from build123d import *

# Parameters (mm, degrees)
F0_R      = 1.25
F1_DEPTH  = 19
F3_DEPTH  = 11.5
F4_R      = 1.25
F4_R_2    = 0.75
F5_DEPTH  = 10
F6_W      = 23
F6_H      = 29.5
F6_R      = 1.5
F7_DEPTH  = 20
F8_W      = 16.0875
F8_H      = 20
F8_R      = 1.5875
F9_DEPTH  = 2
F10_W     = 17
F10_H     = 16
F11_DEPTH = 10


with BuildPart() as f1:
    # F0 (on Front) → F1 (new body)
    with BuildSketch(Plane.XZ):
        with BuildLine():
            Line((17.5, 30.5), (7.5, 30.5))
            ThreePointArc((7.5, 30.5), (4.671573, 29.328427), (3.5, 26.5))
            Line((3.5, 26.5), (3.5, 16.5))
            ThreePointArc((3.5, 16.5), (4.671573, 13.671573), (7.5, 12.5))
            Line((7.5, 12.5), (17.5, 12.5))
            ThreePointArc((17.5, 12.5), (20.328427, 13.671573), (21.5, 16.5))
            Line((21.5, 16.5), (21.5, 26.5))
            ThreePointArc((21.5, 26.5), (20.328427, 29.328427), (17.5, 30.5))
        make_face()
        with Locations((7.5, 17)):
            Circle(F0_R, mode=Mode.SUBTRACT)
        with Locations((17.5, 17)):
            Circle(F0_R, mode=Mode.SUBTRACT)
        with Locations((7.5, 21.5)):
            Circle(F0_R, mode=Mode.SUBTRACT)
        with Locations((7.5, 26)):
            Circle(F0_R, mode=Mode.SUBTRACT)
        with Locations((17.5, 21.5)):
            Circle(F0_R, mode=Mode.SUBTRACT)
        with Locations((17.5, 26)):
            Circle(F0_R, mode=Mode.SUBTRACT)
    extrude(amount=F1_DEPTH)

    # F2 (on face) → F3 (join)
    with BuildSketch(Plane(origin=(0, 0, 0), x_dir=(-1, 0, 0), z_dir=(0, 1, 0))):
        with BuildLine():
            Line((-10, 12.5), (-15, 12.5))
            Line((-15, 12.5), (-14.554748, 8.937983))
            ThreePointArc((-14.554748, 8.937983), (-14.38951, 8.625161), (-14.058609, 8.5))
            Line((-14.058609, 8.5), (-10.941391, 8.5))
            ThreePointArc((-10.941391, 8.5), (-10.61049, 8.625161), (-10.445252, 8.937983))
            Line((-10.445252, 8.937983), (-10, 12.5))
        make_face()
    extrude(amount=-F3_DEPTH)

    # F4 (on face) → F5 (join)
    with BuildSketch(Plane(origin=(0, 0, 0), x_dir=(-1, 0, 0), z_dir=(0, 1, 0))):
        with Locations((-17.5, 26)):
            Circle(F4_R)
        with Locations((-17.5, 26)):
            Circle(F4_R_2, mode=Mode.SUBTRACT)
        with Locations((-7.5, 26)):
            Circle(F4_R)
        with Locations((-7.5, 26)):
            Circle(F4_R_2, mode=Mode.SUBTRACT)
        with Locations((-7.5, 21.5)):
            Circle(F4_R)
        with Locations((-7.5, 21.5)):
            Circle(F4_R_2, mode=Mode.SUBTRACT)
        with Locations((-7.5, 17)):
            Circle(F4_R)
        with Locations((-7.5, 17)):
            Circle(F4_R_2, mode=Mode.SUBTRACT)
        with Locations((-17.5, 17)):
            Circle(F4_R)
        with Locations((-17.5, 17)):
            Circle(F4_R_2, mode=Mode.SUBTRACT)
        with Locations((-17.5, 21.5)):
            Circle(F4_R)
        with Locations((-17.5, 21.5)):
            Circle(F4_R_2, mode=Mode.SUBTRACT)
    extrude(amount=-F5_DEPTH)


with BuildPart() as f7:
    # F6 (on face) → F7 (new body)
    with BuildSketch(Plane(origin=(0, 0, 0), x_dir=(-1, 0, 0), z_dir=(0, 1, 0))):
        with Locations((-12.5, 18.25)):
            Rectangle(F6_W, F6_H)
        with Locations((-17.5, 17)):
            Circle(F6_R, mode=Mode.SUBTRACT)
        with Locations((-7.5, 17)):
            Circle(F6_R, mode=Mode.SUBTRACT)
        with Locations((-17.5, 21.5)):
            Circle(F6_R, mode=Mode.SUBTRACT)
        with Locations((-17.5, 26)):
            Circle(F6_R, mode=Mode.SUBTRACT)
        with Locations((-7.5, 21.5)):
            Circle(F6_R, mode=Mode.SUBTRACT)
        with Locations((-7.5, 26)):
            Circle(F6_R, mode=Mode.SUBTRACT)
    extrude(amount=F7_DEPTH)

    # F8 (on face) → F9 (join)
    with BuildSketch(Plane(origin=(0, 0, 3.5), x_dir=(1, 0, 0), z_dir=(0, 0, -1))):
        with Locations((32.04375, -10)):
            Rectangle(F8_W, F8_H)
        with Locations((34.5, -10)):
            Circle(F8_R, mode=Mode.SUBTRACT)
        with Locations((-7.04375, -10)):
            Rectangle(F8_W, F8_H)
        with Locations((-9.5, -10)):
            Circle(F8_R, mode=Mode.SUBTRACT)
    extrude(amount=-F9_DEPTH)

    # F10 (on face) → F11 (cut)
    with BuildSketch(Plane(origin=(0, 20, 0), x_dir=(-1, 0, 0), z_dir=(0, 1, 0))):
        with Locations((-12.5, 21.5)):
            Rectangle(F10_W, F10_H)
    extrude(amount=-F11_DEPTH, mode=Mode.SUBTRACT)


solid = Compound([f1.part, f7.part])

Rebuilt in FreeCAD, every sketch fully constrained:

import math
import FreeCAD as App
import Part
import Sketcher
from FreeCAD import Vector
Q = App.Units.Quantity


def add_polygon(sketch, points):
    """Adds a closed chain of lines whose ends are joined by coincident constraints."""
    first, n = sketch.GeometryCount, len(points)
    for a, b in zip(points, points[1:] + points[:1]):
        sketch.addGeometry(Part.LineSegment(App.Vector(*a, 0), App.Vector(*b, 0)), False)
    for i in range(n):
        sketch.addConstraint(Sketcher.Constraint("Coincident", first + i, 2, first + (i + 1) % n, 1))

doc = App.newDocument("Part")
params = doc.addObject("Spreadsheet::Sheet", "Params")
for row, (alias, value) in enumerate([
    ("sketch1_radius", "4 mm"),
    ("sketch1_diameter", "2.5 mm"),
    ("sketch1_width", "10 mm"),
    ("pad1_length", "19 mm"),
    ("sketch2_radius", "0.500001 mm"),
    ("sketch2_width", "5 mm"),
    ("pad2_length", "11.5 mm"),
    ("sketch3_diameter", "2.5 mm"),
    ("sketch3_diameter2", "1.5 mm"),
    ("pad3_length", "10 mm"),
    ("sketch4_diameter", "3 mm"),
    ("sketch4_width", "23 mm"),
    ("sketch4_height", "29.5 mm"),
    ("pad4_length", "20 mm"),
    ("sketch5_height", "20 mm"),
    ("pad5_length", "2 mm"),
    ("sketch6_width", "17 mm"),
    ("sketch6_height", "16 mm"),
    ("pocket1_length", "10 mm"),
], start=1):
    params.set(f"A{row}", alias)
    params.set(f"B{row}", "=" + value)
    params.setAlias(f"B{row}", alias)

body = doc.addObject("PartDesign::Body", "Body")

# Sketch on XZ plane
sketch1 = doc.addObject("Sketcher::SketchObject", "Sketch")
body.addObject(sketch1)
sketch1.AttachmentSupport = (doc.XZ_Plane, [""])
sketch1.MapMode = "FlatFace"
sketch1.addGeometry(Part.LineSegment(Vector(17.5, 30.5, 0), Vector(7.5, 30.5, 0)), False)
sketch1.addGeometry(Part.ArcOfCircle(Part.Circle(Vector(7.5, 26.5, 0), Vector(0, 0, 1), 4), math.radians(90), math.radians(180)), False)
sketch1.addGeometry(Part.LineSegment(Vector(3.5, 26.5, 0), Vector(3.5, 16.5, 0)), False)
sketch1.addGeometry(Part.ArcOfCircle(Part.Circle(Vector(7.5, 16.5, 0), Vector(0, 0, 1), 4), math.radians(-180), math.radians(-90)), False)
sketch1.addGeometry(Part.LineSegment(Vector(7.5, 12.5, 0), Vector(17.5, 12.5, 0)), False)
sketch1.addGeometry(Part.ArcOfCircle(Part.Circle(Vector(17.5, 16.5, 0), Vector(0, 0, 1), 4), math.radians(-90), math.radians(0)), False)
sketch1.addGeometry(Part.LineSegment(Vector(21.5, 16.5, 0), Vector(21.5, 26.5, 0)), False)
sketch1.addGeometry(Part.ArcOfCircle(Part.Circle(Vector(17.5, 26.5, 0), Vector(0, 0, 1), 4), math.radians(0), math.radians(90)), False)
sketch1.addGeometry(Part.Circle(Vector(7.5, 17, 0), Vector(0, 0, 1), 1.2), False)
sketch1.addGeometry(Part.Circle(Vector(17.5, 17, 0), Vector(0, 0, 1), 1.2), False)
sketch1.addGeometry(Part.Circle(Vector(7.5, 21.5, 0), Vector(0, 0, 1), 1.2), False)
sketch1.addGeometry(Part.Circle(Vector(7.5, 26, 0), Vector(0, 0, 1), 1.2), False)
sketch1.addGeometry(Part.Circle(Vector(17.5, 21.5, 0), Vector(0, 0, 1), 1.2), False)
sketch1.addGeometry(Part.Circle(Vector(17.5, 26, 0), Vector(0, 0, 1), 1.2), False)
sketch1.addConstraint(Sketcher.Constraint("Tangent", 0, 2, 1, 1))
sketch1.addConstraint(Sketcher.Constraint("Tangent", 1, 2, 2, 1))
sketch1.addConstraint(Sketcher.Constraint("Tangent", 2, 2, 3, 1))
sketch1.addConstraint(Sketcher.Constraint("Tangent", 3, 2, 4, 1))
sketch1.addConstraint(Sketcher.Constraint("Tangent", 4, 2, 5, 1))
sketch1.addConstraint(Sketcher.Constraint("Tangent", 5, 2, 6, 1))
sketch1.addConstraint(Sketcher.Constraint("Tangent", 6, 2, 7, 1))
sketch1.addConstraint(Sketcher.Constraint("Tangent", 7, 2, 0, 1))
sketch1.addConstraint(Sketcher.Constraint("Horizontal", 0))
sketch1.addConstraint(Sketcher.Constraint("Vertical", 2))
sketch1.addConstraint(Sketcher.Constraint("Horizontal", 4))
sketch1.addConstraint(Sketcher.Constraint("Vertical", 6))
sketch1.addConstraint(Sketcher.Constraint("Equal", 1, 3))
sketch1.addConstraint(Sketcher.Constraint("Equal", 3, 5))
sketch1.addConstraint(Sketcher.Constraint("Equal", 5, 7))
sketch1.addConstraint(Sketcher.Constraint("Equal", 8, 9))
sketch1.addConstraint(Sketcher.Constraint("Equal", 9, 10))
sketch1.addConstraint(Sketcher.Constraint("Equal", 10, 11))
sketch1.addConstraint(Sketcher.Constraint("Equal", 11, 12))
sketch1.addConstraint(Sketcher.Constraint("Equal", 12, 13))
sketch1.addConstraint(Sketcher.Constraint("Horizontal", 8, 3, 9, 3))
sketch1.addConstraint(Sketcher.Constraint("Horizontal", 10, 3, 12, 3))
sketch1.addConstraint(Sketcher.Constraint("Horizontal", 11, 3, 13, 3))
sketch1.addConstraint(Sketcher.Constraint("Vertical", 3, 3, 8, 3))
sketch1.addConstraint(Sketcher.Constraint("Vertical", 7, 3, 9, 3))
sketch1.addConstraint(Sketcher.Constraint("Vertical", 8, 3, 10, 3))
sketch1.addConstraint(Sketcher.Constraint("Vertical", 10, 3, 11, 3))
sketch1.addConstraint(Sketcher.Constraint("Vertical", 9, 3, 12, 3))
sketch1.addConstraint(Sketcher.Constraint("Vertical", 12, 3, 13, 3))
sketch1.addConstraint(Sketcher.Constraint("Equal", 4, 2))
sketch1.addConstraint(Sketcher.Constraint("Radius", 1, Q("4 mm")))
sketch1.addConstraint(Sketcher.Constraint("Diameter", 8, Q("2.5 mm")))
sketch1.addConstraint(Sketcher.Constraint("DistanceX", 0, 2, 0, 1, Q("10 mm")))
sketch1.addConstraint(Sketcher.Constraint("DistanceY", -1, 1, 8, 3, Q("17 mm")))
sketch1.addConstraint(Sketcher.Constraint("DistanceY", -1, 1, 11, 3, Q("26 mm")))
sketch1.addConstraint(Sketcher.Constraint("DistanceY", 10, 3, 1, 3, Q("5 mm")))
sketch1.addConstraint(Sketcher.Constraint("DistanceX", -1, 1, 1, 3, Q("7.5 mm")))
sketch1.addConstraint(Sketcher.Constraint("DistanceY", -1, 1, 1, 3, Q("26.5 mm")))
sketch1.setExpression("Constraints[30]", "Params.sketch1_radius")
sketch1.setExpression("Constraints[31]", "Params.sketch1_diameter")
sketch1.setExpression("Constraints[32]", "Params.sketch1_width")
pad1 = doc.addObject("PartDesign::Pad", "Pad")
body.addObject(pad1)
pad1.Profile = sketch1
pad1.setExpression("Length", "Params.pad1_length")

# Sketch on XZ plane
sketch2 = doc.addObject("Sketcher::SketchObject", "Sketch001")
body.addObject(sketch2)
sketch2.AttachmentSupport = (doc.XZ_Plane, [""])
sketch2.MapMode = "FlatFace"
sketch2.addGeometry(Part.LineSegment(Vector(10, 12.5, 0), Vector(15, 12.5, 0)), False)
sketch2.addGeometry(Part.LineSegment(Vector(15, 12.5, 0), Vector(14.6, 8.9, 0)), False)
sketch2.addGeometry(Part.ArcOfCircle(Part.Circle(Vector(14.1, 9, 0), Vector(0, 0, 1), 0.5), math.radians(-90), math.radians(-7)), False)
sketch2.addGeometry(Part.LineSegment(Vector(14.1, 8.5, 0), Vector(10.9, 8.5, 0)), False)
sketch2.addGeometry(Part.ArcOfCircle(Part.Circle(Vector(10.9, 9, 0), Vector(0, 0, 1), 0.5), math.radians(-173), math.radians(-90)), False)
sketch2.addGeometry(Part.LineSegment(Vector(10.4, 8.9, 0), Vector(10, 12.5, 0)), False)
sketch2.addConstraint(Sketcher.Constraint("Coincident", 0, 2, 1, 1))
sketch2.addConstraint(Sketcher.Constraint("Tangent", 1, 2, 2, 2))
sketch2.addConstraint(Sketcher.Constraint("Tangent", 2, 1, 3, 1))
sketch2.addConstraint(Sketcher.Constraint("Tangent", 3, 2, 4, 2))
sketch2.addConstraint(Sketcher.Constraint("Tangent", 4, 1, 5, 1))
sketch2.addConstraint(Sketcher.Constraint("Coincident", 5, 2, 0, 1))
sketch2.addConstraint(Sketcher.Constraint("Horizontal", 0))
sketch2.addConstraint(Sketcher.Constraint("Horizontal", 3))
sketch2.addConstraint(Sketcher.Constraint("Equal", 2, 4))
sketch2.addConstraint(Sketcher.Constraint("Horizontal", 1, 2, 4, 1))
sketch2.addConstraint(Sketcher.Constraint("Radius", 2, Q("0.500001 mm")))
sketch2.addConstraint(Sketcher.Constraint("DistanceX", 0, 1, 0, 2, Q("5 mm")))
sketch2.addConstraint(Sketcher.Constraint("DistanceY", -1, 1, 2, 3, Q("9.000001 mm")))
sketch2.addConstraint(Sketcher.Constraint("DistanceX", -1, 1, 0, 2, Q("15 mm")))
sketch2.addConstraint(Sketcher.Constraint("DistanceY", 2, 1, 0, 2, Q("4 mm")))
sketch2.addConstraint(Sketcher.Constraint("DistanceX", 3, 2, 3, 1, Q("3.117218 mm")))
sketch2.setExpression("Constraints[10]", "Params.sketch2_radius")
sketch2.setExpression("Constraints[11]", "Params.sketch2_width")
pad2 = doc.addObject("PartDesign::Pad", "Pad001")
body.addObject(pad2)
pad2.Profile = sketch2
pad2.setExpression("Length", "Params.pad2_length")

# Sketch on XZ plane
sketch3 = doc.addObject("Sketcher::SketchObject", "Sketch002")
body.addObject(sketch3)
sketch3.AttachmentSupport = (doc.XZ_Plane, [""])
sketch3.MapMode = "FlatFace"
sketch3.addGeometry(Part.Circle(Vector(17.5, 26, 0), Vector(0, 0, 1), 1.2), False)
sketch3.addGeometry(Part.Circle(Vector(17.5, 26, 0), Vector(0, 0, 1), 0.8), False)
sketch3.addGeometry(Part.Circle(Vector(7.5, 26, 0), Vector(0, 0, 1), 1.2), False)
sketch3.addGeometry(Part.Circle(Vector(7.5, 26, 0), Vector(0, 0, 1), 0.8), False)
sketch3.addGeometry(Part.Circle(Vector(7.5, 21.5, 0), Vector(0, 0, 1), 1.2), False)
sketch3.addGeometry(Part.Circle(Vector(7.5, 21.5, 0), Vector(0, 0, 1), 0.8), False)
sketch3.addGeometry(Part.Circle(Vector(7.5, 17, 0), Vector(0, 0, 1), 1.2), False)
sketch3.addGeometry(Part.Circle(Vector(7.5, 17, 0), Vector(0, 0, 1), 0.8), False)
sketch3.addGeometry(Part.Circle(Vector(17.5, 17, 0), Vector(0, 0, 1), 1.2), False)
sketch3.addGeometry(Part.Circle(Vector(17.5, 17, 0), Vector(0, 0, 1), 0.8), False)
sketch3.addGeometry(Part.Circle(Vector(17.5, 21.5, 0), Vector(0, 0, 1), 1.2), False)
sketch3.addGeometry(Part.Circle(Vector(17.5, 21.5, 0), Vector(0, 0, 1), 0.8), False)
sketch3.addConstraint(Sketcher.Constraint("Coincident", 1, 3, 0, 3))
sketch3.addConstraint(Sketcher.Constraint("Coincident", 3, 3, 2, 3))
sketch3.addConstraint(Sketcher.Constraint("Coincident", 5, 3, 4, 3))
sketch3.addConstraint(Sketcher.Constraint("Coincident", 7, 3, 6, 3))
sketch3.addConstraint(Sketcher.Constraint("Coincident", 9, 3, 8, 3))
sketch3.addConstraint(Sketcher.Constraint("Coincident", 11, 3, 10, 3))
sketch3.addConstraint(Sketcher.Constraint("Equal", 0, 2))
sketch3.addConstraint(Sketcher.Constraint("Equal", 1, 3))
sketch3.addConstraint(Sketcher.Constraint("Equal", 2, 4))
sketch3.addConstraint(Sketcher.Constraint("Equal", 3, 5))
sketch3.addConstraint(Sketcher.Constraint("Equal", 4, 6))
sketch3.addConstraint(Sketcher.Constraint("Equal", 5, 7))
sketch3.addConstraint(Sketcher.Constraint("Equal", 6, 8))
sketch3.addConstraint(Sketcher.Constraint("Equal", 7, 9))
sketch3.addConstraint(Sketcher.Constraint("Equal", 8, 10))
sketch3.addConstraint(Sketcher.Constraint("Equal", 9, 11))
sketch3.addConstraint(Sketcher.Constraint("Horizontal", 1, 3, 2, 3))
sketch3.addConstraint(Sketcher.Constraint("Horizontal", 7, 3, 8, 3))
sketch3.addConstraint(Sketcher.Constraint("Horizontal", 5, 3, 10, 3))
sketch3.addConstraint(Sketcher.Constraint("Vertical", 3, 3, 4, 3))
sketch3.addConstraint(Sketcher.Constraint("Vertical", 5, 3, 6, 3))
sketch3.addConstraint(Sketcher.Constraint("Vertical", 1, 3, 8, 3))
sketch3.addConstraint(Sketcher.Constraint("Vertical", 9, 3, 10, 3))
sketch3.addConstraint(Sketcher.Constraint("Diameter", 0, Q("2.5 mm")))
sketch3.addConstraint(Sketcher.Constraint("Diameter", 1, Q("1.5 mm")))
sketch3.addConstraint(Sketcher.Constraint("DistanceY", -1, 1, 0, 3, Q("26 mm")))
sketch3.addConstraint(Sketcher.Constraint("DistanceY", -1, 1, 6, 3, Q("17 mm")))
sketch3.addConstraint(Sketcher.Constraint("DistanceX", 2, 3, 0, 3, Q("10 mm")))
sketch3.addConstraint(Sketcher.Constraint("DistanceX", -1, 1, 0, 3, Q("17.5 mm")))
sketch3.addConstraint(Sketcher.Constraint("DistanceY", -1, 1, 4, 3, Q("21.5 mm")))
sketch3.setExpression("Constraints[23]", "Params.sketch3_diameter")
sketch3.setExpression("Constraints[24]", "Params.sketch3_diameter2")
pad3 = doc.addObject("PartDesign::Pad", "Pad002")
body.addObject(pad3)
pad3.Profile = sketch3
pad3.setExpression("Length", "Params.pad3_length")
body2 = doc.addObject("PartDesign::Body", "Body001")

# Sketch on XZ plane
sketch4 = doc.addObject("Sketcher::SketchObject", "Sketch003")
body2.addObject(sketch4)
sketch4.AttachmentSupport = (doc.getObject("XZ_Plane001"), [""])
sketch4.MapMode = "FlatFace"
add_polygon(sketch4, [(24, 33), (24, 3.5), (1, 3.5), (1, 33)])  # lines 0-3
sketch4.addGeometry(Part.Circle(Vector(17.5, 17, 0), Vector(0, 0, 1), 1.5), False)  # 4
sketch4.addGeometry(Part.Circle(Vector(7.5, 17, 0), Vector(0, 0, 1), 1.5), False)  # 5
sketch4.addGeometry(Part.Circle(Vector(17.5, 21.5, 0), Vector(0, 0, 1), 1.5), False)  # 6
sketch4.addGeometry(Part.Circle(Vector(17.5, 26, 0), Vector(0, 0, 1), 1.5), False)  # 7
sketch4.addGeometry(Part.Circle(Vector(7.5, 21.5, 0), Vector(0, 0, 1), 1.5), False)  # 8
sketch4.addGeometry(Part.Circle(Vector(7.5, 26, 0), Vector(0, 0, 1), 1.5), False)  # 9
sketch4.addConstraint(Sketcher.Constraint("Vertical", 0))
sketch4.addConstraint(Sketcher.Constraint("Horizontal", 1))
sketch4.addConstraint(Sketcher.Constraint("Vertical", 2))
sketch4.addConstraint(Sketcher.Constraint("Horizontal", 3))
sketch4.addConstraint(Sketcher.Constraint("Equal", 4, 5))
sketch4.addConstraint(Sketcher.Constraint("Equal", 5, 6))
sketch4.addConstraint(Sketcher.Constraint("Equal", 6, 7))
sketch4.addConstraint(Sketcher.Constraint("Equal", 7, 8))
sketch4.addConstraint(Sketcher.Constraint("Equal", 8, 9))
sketch4.addConstraint(Sketcher.Constraint("Horizontal", 4, 3, 5, 3))
sketch4.addConstraint(Sketcher.Constraint("Horizontal", 6, 3, 8, 3))
sketch4.addConstraint(Sketcher.Constraint("Horizontal", 7, 3, 9, 3))
sketch4.addConstraint(Sketcher.Constraint("Vertical", 4, 3, 6, 3))
sketch4.addConstraint(Sketcher.Constraint("Vertical", 6, 3, 7, 3))
sketch4.addConstraint(Sketcher.Constraint("Vertical", 5, 3, 8, 3))
sketch4.addConstraint(Sketcher.Constraint("Vertical", 8, 3, 9, 3))
sketch4.addConstraint(Sketcher.Constraint("Diameter", 4, Q("3 mm")))
sketch4.addConstraint(Sketcher.Constraint("DistanceX", 1, 2, 1, 1, Q("23 mm")))
sketch4.addConstraint(Sketcher.Constraint("DistanceY", 0, 2, 0, 1, Q("29.5 mm")))
sketch4.addConstraint(Sketcher.Constraint("DistanceY", -1, 1, 4, 3, Q("17 mm")))
sketch4.addConstraint(Sketcher.Constraint("DistanceY", -1, 1, 7, 3, Q("26 mm")))
sketch4.addConstraint(Sketcher.Constraint("DistanceX", -1, 1, 0, 2, Q("24 mm")))
sketch4.addConstraint(Sketcher.Constraint("DistanceY", -1, 1, 2, 2, Q("33 mm")))
sketch4.addConstraint(Sketcher.Constraint("DistanceX", 5, 3, 4, 3, Q("10 mm")))
sketch4.addConstraint(Sketcher.Constraint("DistanceY", 0, 2, 6, 3, Q("18 mm")))
sketch4.addConstraint(Sketcher.Constraint("DistanceX", -1, 1, 4, 3, Q("17.5 mm")))
sketch4.setExpression("Constraints[20]", "Params.sketch4_diameter")
sketch4.setExpression("Constraints[21]", "Params.sketch4_width")
sketch4.setExpression("Constraints[22]", "Params.sketch4_height")
pad4 = doc.addObject("PartDesign::Pad", "Pad003")
body2.addObject(pad4)
pad4.Profile = sketch4
pad4.setExpression("Length", "Params.pad4_length")
pad4.Reversed = True

# Sketch on XY plane
sketch5 = doc.addObject("Sketcher::SketchObject", "Sketch004")
body2.addObject(sketch5)
sketch5.AttachmentSupport = (doc.getObject("XY_Plane001"), [""])
sketch5.MapMode = "FlatFace"
sketch5.AttachmentOffset = App.Placement(Vector(0, 0, 3.5), App.Rotation())
add_polygon(sketch5, [(24, 0), (24, 20), (40.1, 20), (40.1, 0)])  # lines 0-3
sketch5.addGeometry(Part.Circle(Vector(34.5, 10, 0), Vector(0, 0, 1), 1.6), False)  # 4
add_polygon(sketch5, [(-15.1, 0), (-15.1, 20), (1, 20), (1, 0)])  # lines 5-8
sketch5.addGeometry(Part.Circle(Vector(-9.5, 10, 0), Vector(0, 0, 1), 1.6), False)  # 9
sketch5.addConstraint(Sketcher.Constraint("Vertical", 0))
sketch5.addConstraint(Sketcher.Constraint("Horizontal", 1))
sketch5.addConstraint(Sketcher.Constraint("Vertical", 2))
sketch5.addConstraint(Sketcher.Constraint("Horizontal", 3))
sketch5.addConstraint(Sketcher.Constraint("Vertical", 5))
sketch5.addConstraint(Sketcher.Constraint("Horizontal", 6))
sketch5.addConstraint(Sketcher.Constraint("Vertical", 7))
sketch5.addConstraint(Sketcher.Constraint("Horizontal", 8))
sketch5.addConstraint(Sketcher.Constraint("Equal", 4, 9))
sketch5.addConstraint(Sketcher.Constraint("PointOnObject", 2, 2, -1))
sketch5.addConstraint(Sketcher.Constraint("PointOnObject", 7, 2, -1))
sketch5.addConstraint(Sketcher.Constraint("Horizontal", 4, 3, 9, 3))
sketch5.addConstraint(Sketcher.Constraint("Horizontal", 1, 2, 5, 2))
sketch5.addConstraint(Sketcher.Constraint("Equal", 3, 6))
sketch5.addConstraint(Sketcher.Constraint("DistanceY", 0, 1, 0, 2, Q("20 mm")))
sketch5.addConstraint(Sketcher.Constraint("Diameter", 4, Q("3.175 mm")))
sketch5.addConstraint(Sketcher.Constraint("DistanceY", -1, 1, 4, 3, Q("10 mm")))
sketch5.addConstraint(Sketcher.Constraint("DistanceX", -1, 1, 0, 2, Q("24 mm")))
sketch5.addConstraint(Sketcher.Constraint("DistanceX", -1, 1, 6, 2, Q("1 mm")))
sketch5.addConstraint(Sketcher.Constraint("DistanceX", 9, 3, 4, 3, Q("44 mm")))
sketch5.addConstraint(Sketcher.Constraint("DistanceX", -1, 1, 4, 3, Q("34.5 mm")))
sketch5.addConstraint(Sketcher.Constraint("DistanceX", 1, 1, 1, 2, Q("16.0875 mm")))
sketch5.setExpression("Constraints[22]", "Params.sketch5_height")
pad5 = doc.addObject("PartDesign::Pad", "Pad004")
body2.addObject(pad5)
pad5.Profile = sketch5
pad5.setExpression("Length", "Params.pad5_length")

# Sketch on XZ plane
sketch6 = doc.addObject("Sketcher::SketchObject", "Sketch005")
body2.addObject(sketch6)
sketch6.AttachmentSupport = (doc.getObject("XZ_Plane001"), [""])
sketch6.MapMode = "FlatFace"
sketch6.AttachmentOffset = App.Placement(Vector(0, 0, -20), App.Rotation())
add_polygon(sketch6, [(21, 30), (21, 14), (4, 14), (4, 30)])  # lines 0-3
sketch6.addConstraint(Sketcher.Constraint("Vertical", 0))
sketch6.addConstraint(Sketcher.Constraint("Horizontal", 1))
sketch6.addConstraint(Sketcher.Constraint("Vertical", 2))
sketch6.addConstraint(Sketcher.Constraint("Horizontal", 3))
sketch6.addConstraint(Sketcher.Constraint("DistanceX", 1, 2, 1, 1, Q("17 mm")))
sketch6.addConstraint(Sketcher.Constraint("DistanceY", 0, 2, 0, 1, Q("16 mm")))
sketch6.addConstraint(Sketcher.Constraint("DistanceX", -1, 1, 0, 2, Q("21 mm")))
sketch6.addConstraint(Sketcher.Constraint("DistanceY", -1, 1, 0, 2, Q("13.5 mm")))
sketch6.setExpression("Constraints[8]", "Params.sketch6_width")
sketch6.setExpression("Constraints[9]", "Params.sketch6_height")
pocket1 = doc.addObject("PartDesign::Pocket", "Pocket")
body2.addObject(pocket1)
pocket1.Profile = sketch6
pocket1.setExpression("Length", "Params.pocket1_length")
pocket1.Reversed = True

doc.recompute()
